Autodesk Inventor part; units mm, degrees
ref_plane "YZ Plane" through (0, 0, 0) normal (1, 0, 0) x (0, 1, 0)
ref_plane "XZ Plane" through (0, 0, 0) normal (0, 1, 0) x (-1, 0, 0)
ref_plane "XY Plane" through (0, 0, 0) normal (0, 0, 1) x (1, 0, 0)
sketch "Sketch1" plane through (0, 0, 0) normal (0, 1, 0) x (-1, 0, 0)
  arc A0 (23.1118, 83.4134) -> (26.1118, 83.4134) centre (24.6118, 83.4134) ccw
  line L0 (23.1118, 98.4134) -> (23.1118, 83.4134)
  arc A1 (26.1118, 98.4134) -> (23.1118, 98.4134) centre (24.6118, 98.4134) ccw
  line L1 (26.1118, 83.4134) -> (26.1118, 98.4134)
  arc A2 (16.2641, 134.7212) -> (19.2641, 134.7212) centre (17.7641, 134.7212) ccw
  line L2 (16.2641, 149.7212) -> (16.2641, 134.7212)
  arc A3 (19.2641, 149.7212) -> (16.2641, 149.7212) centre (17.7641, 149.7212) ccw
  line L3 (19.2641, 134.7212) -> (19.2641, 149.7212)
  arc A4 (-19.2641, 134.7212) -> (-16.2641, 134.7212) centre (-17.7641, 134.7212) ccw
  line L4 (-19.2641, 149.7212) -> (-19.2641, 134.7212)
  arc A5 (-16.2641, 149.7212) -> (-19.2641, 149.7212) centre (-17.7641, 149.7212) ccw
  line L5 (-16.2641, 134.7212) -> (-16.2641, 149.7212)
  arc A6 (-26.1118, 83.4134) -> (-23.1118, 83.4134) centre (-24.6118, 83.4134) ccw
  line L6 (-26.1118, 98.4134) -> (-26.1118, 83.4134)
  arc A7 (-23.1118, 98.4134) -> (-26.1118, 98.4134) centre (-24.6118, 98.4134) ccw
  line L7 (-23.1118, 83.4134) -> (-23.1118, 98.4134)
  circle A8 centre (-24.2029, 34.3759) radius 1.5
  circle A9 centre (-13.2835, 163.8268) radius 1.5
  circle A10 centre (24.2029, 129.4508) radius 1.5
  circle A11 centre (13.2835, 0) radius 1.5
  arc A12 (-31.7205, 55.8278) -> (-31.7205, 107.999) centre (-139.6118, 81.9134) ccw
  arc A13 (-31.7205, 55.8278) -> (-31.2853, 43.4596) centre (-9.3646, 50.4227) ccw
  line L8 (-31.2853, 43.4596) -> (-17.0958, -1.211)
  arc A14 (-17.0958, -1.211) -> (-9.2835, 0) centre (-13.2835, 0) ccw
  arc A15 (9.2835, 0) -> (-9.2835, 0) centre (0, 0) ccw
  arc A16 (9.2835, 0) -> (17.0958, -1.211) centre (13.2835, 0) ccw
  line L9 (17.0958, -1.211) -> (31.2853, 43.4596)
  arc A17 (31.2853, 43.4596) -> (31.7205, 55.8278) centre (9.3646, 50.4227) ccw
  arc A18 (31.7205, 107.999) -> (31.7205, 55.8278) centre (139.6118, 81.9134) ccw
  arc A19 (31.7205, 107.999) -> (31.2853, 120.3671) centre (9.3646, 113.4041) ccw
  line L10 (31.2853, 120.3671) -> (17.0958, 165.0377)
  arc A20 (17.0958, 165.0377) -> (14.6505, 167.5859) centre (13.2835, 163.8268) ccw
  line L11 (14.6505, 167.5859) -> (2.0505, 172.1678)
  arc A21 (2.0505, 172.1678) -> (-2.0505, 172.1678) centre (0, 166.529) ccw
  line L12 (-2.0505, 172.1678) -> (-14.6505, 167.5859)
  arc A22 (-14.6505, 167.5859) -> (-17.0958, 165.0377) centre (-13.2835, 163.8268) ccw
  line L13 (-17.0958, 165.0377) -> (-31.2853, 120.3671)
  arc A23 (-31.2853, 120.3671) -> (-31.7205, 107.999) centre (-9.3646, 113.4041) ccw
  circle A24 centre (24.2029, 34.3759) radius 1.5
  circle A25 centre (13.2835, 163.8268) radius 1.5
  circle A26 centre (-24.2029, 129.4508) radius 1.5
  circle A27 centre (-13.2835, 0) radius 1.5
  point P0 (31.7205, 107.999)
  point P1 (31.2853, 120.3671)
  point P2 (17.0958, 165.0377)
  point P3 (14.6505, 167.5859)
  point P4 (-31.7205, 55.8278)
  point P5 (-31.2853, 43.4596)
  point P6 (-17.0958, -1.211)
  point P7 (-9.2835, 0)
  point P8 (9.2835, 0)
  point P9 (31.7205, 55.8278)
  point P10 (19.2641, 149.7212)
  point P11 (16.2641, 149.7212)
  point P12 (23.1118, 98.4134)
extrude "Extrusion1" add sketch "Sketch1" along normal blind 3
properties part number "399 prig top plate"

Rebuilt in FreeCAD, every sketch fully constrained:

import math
import FreeCAD as App
import Part
import Sketcher
from FreeCAD import Vector
Q = App.Units.Quantity

doc = App.newDocument("Part")
body = doc.addObject("PartDesign::Body", "Body")

sketch1 = body.newObject("Sketcher::SketchObject", "Sketch")
sketch1.AttachmentSupport = (doc.getObject("XZ_Plane"), [""])
sketch1.MapMode = "FlatFace"
sketch1.addGeometry(Part.ArcOfCircle(Part.Circle(Vector(139.6, 81.9, 0), Vector(0, 0, 1), 111), math.radians(166), math.radians(194)), False)
sketch1.addGeometry(Part.ArcOfCircle(Part.Circle(Vector(9.4, 50.4, 0), Vector(0, 0, 1), 23), math.radians(-18), math.radians(14)), False)
sketch1.addGeometry(Part.LineSegment(Vector(31.3, 43.5, 0), Vector(17.1, -1.2, 0)), False)
sketch1.addGeometry(Part.ArcOfCircle(Part.Circle(Vector(13.3, 0, 0), Vector(0, 0, 1), 4), math.radians(180), math.radians(342)), False)
sketch1.addGeometry(Part.ArcOfCircle(Part.Circle(Vector(0, 0, 0), Vector(0, 0, 1), 9.3), math.radians(0), math.radians(180)), False)
sketch1.addGeometry(Part.ArcOfCircle(Part.Circle(Vector(-13.3, 0, 0), Vector(0, 0, 1), 4), math.radians(-162), math.radians(0)), False)
sketch1.addGeometry(Part.LineSegment(Vector(-17.1, -1.2, 0), Vector(-31.3, 43.5, 0)), False)
sketch1.addGeometry(Part.ArcOfCircle(Part.Circle(Vector(-9.4, 50.4, 0), Vector(0, 0, 1), 23), math.radians(166), math.radians(198)), False)
sketch1.addGeometry(Part.ArcOfCircle(Part.Circle(Vector(-139.6, 81.9, 0), Vector(0, 0, 1), 111), math.radians(-14), math.radians(14)), False)
sketch1.addGeometry(Part.ArcOfCircle(Part.Circle(Vector(-9.4, 113.4, 0), Vector(0, 0, 1), 23), math.radians(162), math.radians(194)), False)
sketch1.addGeometry(Part.LineSegment(Vector(-31.3, 120.4, 0), Vector(-17.1, 165, 0)), False)
sketch1.addGeometry(Part.ArcOfCircle(Part.Circle(Vector(-13.3, 163.8, 0), Vector(0, 0, 1), 4), math.radians(110), math.radians(162)), False)
sketch1.addGeometry(Part.LineSegment(Vector(-14.7, 167.6, 0), Vector(-2.1, 172.2, 0)), False)
sketch1.addGeometry(Part.ArcOfCircle(Part.Circle(Vector(0, 166.5, 0), Vector(0, 0, 1), 6), math.radians(70), math.radians(110)), False)
sketch1.addGeometry(Part.LineSegment(Vector(2.1, 172.2, 0), Vector(14.7, 167.6, 0)), False)
sketch1.addGeometry(Part.ArcOfCircle(Part.Circle(Vector(13.3, 163.8, 0), Vector(0, 0, 1), 4), math.radians(18), math.radians(70)), False)
sketch1.addGeometry(Part.LineSegment(Vector(17.1, 165, 0), Vector(31.3, 120.4, 0)), False)
sketch1.addGeometry(Part.ArcOfCircle(Part.Circle(Vector(9.4, 113.4, 0), Vector(0, 0, 1), 23), math.radians(-14), math.radians(18)), False)
sketch1.addGeometry(Part.Circle(Vector(24.2, 34.4, 0), Vector(0, 0, 1), 1.5), False)
sketch1.addGeometry(Part.Circle(Vector(13.3, 0, 0), Vector(0, 0, 1), 1.5), False)
sketch1.addGeometry(Part.Circle(Vector(-13.3, 0, 0), Vector(0, 0, 1), 1.5), False)
sketch1.addGeometry(Part.Circle(Vector(-24.2, 34.4, 0), Vector(0, 0, 1), 1.5), False)
sketch1.addGeometry(Part.ArcOfCircle(Part.Circle(Vector(24.6, 83.4, 0), Vector(0, 0, 1), 1.5), math.radians(180), math.radians(360)), False)
sketch1.addGeometry(Part.LineSegment(Vector(26.1, 83.4, 0), Vector(26.1, 98.4, 0)), False)
sketch1.addGeometry(Part.ArcOfCircle(Part.Circle(Vector(24.6, 98.4, 0), Vector(0, 0, 1), 1.5), math.radians(0), math.radians(180)), False)
sketch1.addGeometry(Part.LineSegment(Vector(23.1, 98.4, 0), Vector(23.1, 83.4, 0)), False)
sketch1.addGeometry(Part.Circle(Vector(24.2, 129.5, 0), Vector(0, 0, 1), 1.5), False)
sketch1.addGeometry(Part.ArcOfCircle(Part.Circle(Vector(17.8, 134.7, 0), Vector(0, 0, 1), 1.5), math.radians(180), math.radians(360)), False)
sketch1.addGeometry(Part.LineSegment(Vector(19.3, 134.7, 0), Vector(19.3, 149.7, 0)), False)
sketch1.addGeometry(Part.ArcOfCircle(Part.Circle(Vector(17.8, 149.7, 0), Vector(0, 0, 1), 1.5), math.radians(0), math.radians(180)), False)
sketch1.addGeometry(Part.LineSegment(Vector(16.3, 149.7, 0), Vector(16.3, 134.7, 0)), False)
sketch1.addGeometry(Part.Circle(Vector(13.3, 163.8, 0), Vector(0, 0, 1), 1.5), False)
sketch1.addGeometry(Part.ArcOfCircle(Part.Circle(Vector(-24.6, 83.4, 0), Vector(0, 0, 1), 1.5), math.radians(180), math.radians(360)), False)
sketch1.addGeometry(Part.LineSegment(Vector(-23.1, 83.4, 0), Vector(-23.1, 98.4, 0)), False)
sketch1.addGeometry(Part.ArcOfCircle(Part.Circle(Vector(-24.6, 98.4, 0), Vector(0, 0, 1), 1.5), math.radians(0), math.radians(180)), False)
sketch1.addGeometry(Part.LineSegment(Vector(-26.1, 98.4, 0), Vector(-26.1, 83.4, 0)), False)
sketch1.addGeometry(Part.Circle(Vector(-13.3, 163.8, 0), Vector(0, 0, 1), 1.5), False)
sketch1.addGeometry(Part.Circle(Vector(-24.2, 129.5, 0), Vector(0, 0, 1), 1.5), False)
sketch1.addGeometry(Part.ArcOfCircle(Part.Circle(Vector(-17.8, 134.7, 0), Vector(0, 0, 1), 1.5), math.radians(180), math.radians(360)), False)
sketch1.addGeometry(Part.LineSegment(Vector(-16.3, 134.7, 0), Vector(-16.3, 149.7, 0)), False)
sketch1.addGeometry(Part.ArcOfCircle(Part.Circle(Vector(-17.8, 149.7, 0), Vector(0, 0, 1), 1.5), math.radians(0), math.radians(180)), False)
sketch1.addGeometry(Part.LineSegment(Vector(-19.3, 149.7, 0), Vector(-19.3, 134.7, 0)), False)
sketch1.addConstraint(Sketcher.Constraint("Tangent", 0, 2, 1, 2))
sketch1.addConstraint(Sketcher.Constraint("Tangent", 1, 1, 2, 1))
sketch1.addConstraint(Sketcher.Constraint("Tangent", 2, 2, 3, 2))
sketch1.addConstraint(Sketcher.Constraint("Tangent", 3, 1, 4, 1))
sketch1.addConstraint(Sketcher.Constraint("Tangent", 4, 2, 5, 2))
sketch1.addConstraint(Sketcher.Constraint("Tangent", 5, 1, 6, 1))
sketch1.addConstraint(Sketcher.Constraint("Tangent", 6, 2, 7, 2))
sketch1.addConstraint(Sketcher.Constraint("Tangent", 7, 1, 8, 1))
sketch1.addConstraint(Sketcher.Constraint("Tangent", 8, 2, 9, 2))
sketch1.addConstraint(Sketcher.Constraint("Tangent", 9, 1, 10, 1))
sketch1.addConstraint(Sketcher.Constraint("Tangent", 10, 2, 11, 2))
sketch1.addConstraint(Sketcher.Constraint("Tangent", 11, 1, 12, 1))
sketch1.addConstraint(Sketcher.Constraint("Tangent", 12, 2, 13, 2))
sketch1.addConstraint(Sketcher.Constraint("Tangent", 13, 1, 14, 1))
sketch1.addConstraint(Sketcher.Constraint("Tangent", 14, 2, 15, 2))
sketch1.addConstraint(Sketcher.Constraint("Tangent", 15, 1, 16, 1))
sketch1.addConstraint(Sketcher.Constraint("Tangent", 16, 2, 17, 2))
sketch1.addConstraint(Sketcher.Constraint("Tangent", 17, 1, 0, 1))
sketch1.addConstraint(Sketcher.Constraint("Tangent", 22, 2, 23, 1))
sketch1.addConstraint(Sketcher.Constraint("Tangent", 23, 2, 24, 1))
sketch1.addConstraint(Sketcher.Constraint("Tangent", 24, 2, 25, 1))
sketch1.addConstraint(Sketcher.Constraint("Tangent", 25, 2, 22, 1))
sketch1.addConstraint(Sketcher.Constraint("Tangent", 27, 2, 28, 1))
sketch1.addConstraint(Sketcher.Constraint("Tangent", 28, 2, 29, 1))
sketch1.addConstraint(Sketcher.Constraint("Tangent", 29, 2, 30, 1))
sketch1.addConstraint(Sketcher.Constraint("Tangent", 30, 2, 27, 1))
sketch1.addConstraint(Sketcher.Constraint("Tangent", 32, 2, 33, 1))
sketch1.addConstraint(Sketcher.Constraint("Tangent", 33, 2, 34, 1))
sketch1.addConstraint(Sketcher.Constraint("Tangent", 34, 2, 35, 1))
sketch1.addConstraint(Sketcher.Constraint("Tangent", 35, 2, 32, 1))
sketch1.addConstraint(Sketcher.Constraint("Tangent", 38, 2, 39, 1))
sketch1.addConstraint(Sketcher.Constraint("Tangent", 39, 2, 40, 1))
sketch1.addConstraint(Sketcher.Constraint("Tangent", 40, 2, 41, 1))
sketch1.addConstraint(Sketcher.Constraint("Tangent", 41, 2, 38, 1))
sketch1.addConstraint(Sketcher.Constraint("Vertical", 23))
sketch1.addConstraint(Sketcher.Constraint("Vertical", 25))
sketch1.addConstraint(Sketcher.Constraint("Vertical", 28))
sketch1.addConstraint(Sketcher.Constraint("Vertical", 30))
sketch1.addConstraint(Sketcher.Constraint("Vertical", 33))
sketch1.addConstraint(Sketcher.Constraint("Vertical", 35))
sketch1.addConstraint(Sketcher.Constraint("Vertical", 39))
sketch1.addConstraint(Sketcher.Constraint("Vertical", 41))
sketch1.addConstraint(Sketcher.Constraint("Coincident", 4, 3, -1, 1))
sketch1.addConstraint(Sketcher.Constraint("Coincident", 19, 3, 3, 3))
sketch1.addConstraint(Sketcher.Constraint("Coincident", 20, 3, 5, 3))
sketch1.addConstraint(Sketcher.Constraint("Coincident", 31, 3, 15, 3))
sketch1.addConstraint(Sketcher.Constraint("Coincident", 36, 3, 11, 3))
sketch1.addConstraint(Sketcher.Constraint("Equal", 3, 5))
sketch1.addConstraint(Sketcher.Constraint("Equal", 1, 7))
sketch1.addConstraint(Sketcher.Constraint("Equal", 0, 8))
sketch1.addConstraint(Sketcher.Constraint("Equal", 7, 9))
sketch1.addConstraint(Sketcher.Constraint("Equal", 5, 11))
sketch1.addConstraint(Sketcher.Constraint("Equal", 11, 15))
sketch1.addConstraint(Sketcher.Constraint("Equal", 9, 17))
sketch1.addConstraint(Sketcher.Constraint("Equal", 18, 19))
sketch1.addConstraint(Sketcher.Constraint("Equal", 19, 20))
sketch1.addConstraint(Sketcher.Constraint("Equal", 20, 21))
sketch1.addConstraint(Sketcher.Constraint("Equal", 21, 22))
sketch1.addConstraint(Sketcher.Constraint("Equal", 24, 26))
sketch1.addConstraint(Sketcher.Constraint("Equal", 26, 27))
sketch1.addConstraint(Sketcher.Constraint("Equal", 29, 31))
sketch1.addConstraint(Sketcher.Constraint("Equal", 31, 32))
sketch1.addConstraint(Sketcher.Constraint("Equal", 34, 36))
sketch1.addConstraint(Sketcher.Constraint("Equal", 36, 37))
sketch1.addConstraint(Sketcher.Constraint("Equal", 37, 38))
sketch1.addConstraint(Sketcher.Constraint("Symmetric", 1, 3, 7, 3, -2))
sketch1.addConstraint(Sketcher.Constraint("Symmetric", 11, 3, 15, 3, -2))
sketch1.addConstraint(Sketcher.Constraint("Symmetric", 9, 3, 17, 3, -2))
sketch1.addConstraint(Sketcher.Constraint("Symmetric", 18, 3, 21, 3, -2))
sketch1.addConstraint(Sketcher.Constraint("Symmetric", 22, 3, 32, 3, -2))
sketch1.addConstraint(Sketcher.Constraint("Symmetric", 26, 3, 37, 3, -2))
sketch1.addConstraint(Sketcher.Constraint("Symmetric", 27, 3, 38, 3, -2))
sketch1.addConstraint(Sketcher.Constraint("PointOnObject", 3, 3, -1))
sketch1.addConstraint(Sketcher.Constraint("PointOnObject", 5, 3, -1))
sketch1.addConstraint(Sketcher.Constraint("PointOnObject", 13, 3, -2))
sketch1.addConstraint(Sketcher.Constraint("Parallel", 2, 10))
sketch1.addConstraint(Sketcher.Constraint("Horizontal", 24, 3, 34, 3))
sketch1.addConstraint(Sketcher.Constraint("Horizontal", 29, 3, 40, 3))
sketch1.addConstraint(Sketcher.Constraint("Vertical", 7, 3, 9, 3))
sketch1.addConstraint(Sketcher.Constraint("Vertical", 5, 3, 11, 3))
sketch1.addConstraint(Sketcher.Constraint("Vertical", 18, 3, 26, 3))
sketch1.addConstraint(Sketcher.Constraint("Equal", 25, 28))
sketch1.addConstraint(Sketcher.Constraint("Diameter", 18, Q("3 mm")))
sketch1.addConstraint(Sketcher.Constraint("Radius", 0, Q("111 mm")))
sketch1.addConstraint(Sketcher.Constraint("Radius", 1, Q("23 mm")))
sketch1.addConstraint(Sketcher.Constraint("Radius", 3, Q("4 mm")))
sketch1.addConstraint(Sketcher.Constraint("Radius", 13, Q("6 mm")))
sketch1.addConstraint(Sketcher.Constraint("DistanceY", 23, 1, 23, 2, Q("15 mm")))
sketch1.addConstraint(Sketcher.Constraint("Radius", 4, Q("9.2835 mm")))
sketch1.addConstraint(Sketcher.Constraint("Distance", 2, Q("46.87 mm")))
sketch1.addConstraint(Sketcher.Constraint("DistanceY", -1, 1, 9, 3, Q("113.404 mm")))
sketch1.addConstraint(Sketcher.Constraint("DistanceY", -1, 1, 13, 3, Q("166.529 mm")))
sketch1.addConstraint(Sketcher.Constraint("DistanceX", -1, 1, 18, 3, Q("24.203 mm")))
sketch1.addConstraint(Sketcher.Constraint("DistanceY", -1, 1, 18, 3, Q("34.376 mm")))
sketch1.addConstraint(Sketcher.Constraint("DistanceX", -1, 1, 27, 3, Q("17.764 mm")))
sketch1.addConstraint(Sketcher.Constraint("DistanceY", 2, 2, -1, 1, Q("1.211 mm")))
sketch1.addConstraint(Sketcher.Constraint("DistanceX", -1, 1, 22, 3, Q("24.6118 mm")))
sketch1.addConstraint(Sketcher.Constraint("DistanceY", -1, 1, 22, 3, Q("83.4134 mm")))
sketch1.addConstraint(Sketcher.Constraint("DistanceY", -1, 1, 26, 3, Q("129.4508 mm")))
sketch1.addConstraint(Sketcher.Constraint("DistanceY", -1, 1, 27, 3, Q("134.7212 mm")))
pad1 = body.newObject("PartDesign::Pad", "Pad")
pad1.Profile = sketch1
pad1.Length = 3
pad1.Reversed = True

doc.recompute()
